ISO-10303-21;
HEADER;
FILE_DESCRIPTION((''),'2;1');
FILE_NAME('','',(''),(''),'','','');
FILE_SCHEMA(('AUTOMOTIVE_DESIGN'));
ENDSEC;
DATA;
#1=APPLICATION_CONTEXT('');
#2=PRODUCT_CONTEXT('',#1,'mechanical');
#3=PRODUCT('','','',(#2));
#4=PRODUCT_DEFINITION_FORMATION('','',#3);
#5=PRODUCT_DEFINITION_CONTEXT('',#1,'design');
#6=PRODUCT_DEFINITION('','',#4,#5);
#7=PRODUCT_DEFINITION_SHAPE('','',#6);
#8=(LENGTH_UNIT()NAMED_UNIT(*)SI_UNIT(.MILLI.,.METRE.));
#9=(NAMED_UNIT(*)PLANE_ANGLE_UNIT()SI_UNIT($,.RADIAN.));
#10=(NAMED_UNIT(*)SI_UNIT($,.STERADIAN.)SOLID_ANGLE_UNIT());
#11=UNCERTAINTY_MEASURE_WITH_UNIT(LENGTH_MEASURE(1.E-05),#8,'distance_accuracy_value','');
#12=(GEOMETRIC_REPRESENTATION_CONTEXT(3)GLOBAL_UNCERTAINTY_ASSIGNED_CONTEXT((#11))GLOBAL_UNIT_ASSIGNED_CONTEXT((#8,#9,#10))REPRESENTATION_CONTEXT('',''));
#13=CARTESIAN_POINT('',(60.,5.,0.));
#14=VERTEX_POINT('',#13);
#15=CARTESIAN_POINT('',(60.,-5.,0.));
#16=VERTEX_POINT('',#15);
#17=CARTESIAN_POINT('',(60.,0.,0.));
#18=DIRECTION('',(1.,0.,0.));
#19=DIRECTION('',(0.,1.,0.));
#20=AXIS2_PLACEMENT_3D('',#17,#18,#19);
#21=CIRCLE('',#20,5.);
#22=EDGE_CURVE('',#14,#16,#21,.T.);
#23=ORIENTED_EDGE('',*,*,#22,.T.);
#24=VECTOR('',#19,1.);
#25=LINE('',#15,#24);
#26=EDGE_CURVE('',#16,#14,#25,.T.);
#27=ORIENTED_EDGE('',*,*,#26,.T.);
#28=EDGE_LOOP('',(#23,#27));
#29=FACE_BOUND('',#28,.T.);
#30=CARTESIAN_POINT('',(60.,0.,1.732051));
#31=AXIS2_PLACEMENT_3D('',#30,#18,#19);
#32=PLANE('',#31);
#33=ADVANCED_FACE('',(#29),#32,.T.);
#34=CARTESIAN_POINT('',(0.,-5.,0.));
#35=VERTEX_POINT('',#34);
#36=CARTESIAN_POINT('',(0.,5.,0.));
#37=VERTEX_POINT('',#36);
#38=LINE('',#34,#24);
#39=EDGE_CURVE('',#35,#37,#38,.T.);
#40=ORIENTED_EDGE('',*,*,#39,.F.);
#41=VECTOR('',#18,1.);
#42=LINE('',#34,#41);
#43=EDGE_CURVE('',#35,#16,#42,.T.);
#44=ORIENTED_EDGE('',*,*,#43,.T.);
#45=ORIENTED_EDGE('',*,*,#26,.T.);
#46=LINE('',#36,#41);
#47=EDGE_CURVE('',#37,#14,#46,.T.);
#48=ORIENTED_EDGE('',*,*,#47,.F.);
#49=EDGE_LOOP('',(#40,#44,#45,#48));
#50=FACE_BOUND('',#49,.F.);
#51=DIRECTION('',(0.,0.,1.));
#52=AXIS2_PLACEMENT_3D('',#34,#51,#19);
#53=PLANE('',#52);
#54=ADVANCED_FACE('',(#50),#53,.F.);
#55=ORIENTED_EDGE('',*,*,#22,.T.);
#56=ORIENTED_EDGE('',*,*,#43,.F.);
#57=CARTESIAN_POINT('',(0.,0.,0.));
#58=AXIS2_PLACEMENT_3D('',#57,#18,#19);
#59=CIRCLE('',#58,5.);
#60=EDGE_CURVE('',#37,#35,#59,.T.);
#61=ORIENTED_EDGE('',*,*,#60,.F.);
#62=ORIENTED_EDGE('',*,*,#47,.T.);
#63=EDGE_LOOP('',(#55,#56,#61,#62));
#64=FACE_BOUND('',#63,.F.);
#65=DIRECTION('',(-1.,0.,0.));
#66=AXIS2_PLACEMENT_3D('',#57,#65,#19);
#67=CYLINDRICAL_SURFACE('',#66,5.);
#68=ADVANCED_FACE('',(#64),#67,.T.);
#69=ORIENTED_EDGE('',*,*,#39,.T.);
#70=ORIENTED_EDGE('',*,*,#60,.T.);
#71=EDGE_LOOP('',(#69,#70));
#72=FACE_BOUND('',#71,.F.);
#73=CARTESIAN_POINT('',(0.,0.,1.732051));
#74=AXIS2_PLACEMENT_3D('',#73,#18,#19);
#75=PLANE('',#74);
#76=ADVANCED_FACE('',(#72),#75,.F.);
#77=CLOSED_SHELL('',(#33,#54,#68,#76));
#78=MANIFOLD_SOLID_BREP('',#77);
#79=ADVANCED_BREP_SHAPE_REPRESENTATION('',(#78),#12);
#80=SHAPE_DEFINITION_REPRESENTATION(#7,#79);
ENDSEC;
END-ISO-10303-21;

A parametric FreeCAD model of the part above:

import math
import FreeCAD as App
import Part
import Sketcher
from FreeCAD import Vector
Q = App.Units.Quantity

doc = App.newDocument("Part")
params = doc.addObject("Spreadsheet::Sheet", "Params")
for row, (alias, value) in enumerate([
    ("sketch1_radius", "5 mm"),
    ("pad1_length", "60 mm"),
], start=1):
    params.set(f"A{row}", alias)
    params.set(f"B{row}", "=" + value)
    params.setAlias(f"B{row}", alias)

body = doc.addObject("PartDesign::Body", "Body")

sketch1 = body.newObject("Sketcher::SketchObject", "Sketch")
sketch1.AttachmentSupport = (doc.getObject("YZ_Plane"), [""])
sketch1.MapMode = "FlatFace"
sketch1.addGeometry([
    Part.LineSegment(Vector(-5, 0, 0), Vector(5, 0, 0)),
    Part.ArcOfCircle(Part.Circle(Vector(0, 0, 0), Vector(0, 0, 1), 5), math.radians(0), math.radians(180)),
], False)
sketch1.addConstraint([
    Sketcher.Constraint("Coincident", 0, 1, 1, 2),
    Sketcher.Constraint("Coincident", 1, 1, 0, 2),
    Sketcher.Constraint("Horizontal", 0),
    Sketcher.Constraint("Coincident", 1, 3, -1, 1),
    Sketcher.Constraint("PointOnObject", 0, 1, -1),
    Sketcher.Constraint("Radius", 1, Q("5 mm")),
])
sketch1.setExpression("Constraints[5]", "Params.sketch1_radius")
pad1 = body.newObject("PartDesign::Pad", "Pad")
pad1.Profile = sketch1
pad1.setExpression("Length", "Params.pad1_length")

doc.recompute()
